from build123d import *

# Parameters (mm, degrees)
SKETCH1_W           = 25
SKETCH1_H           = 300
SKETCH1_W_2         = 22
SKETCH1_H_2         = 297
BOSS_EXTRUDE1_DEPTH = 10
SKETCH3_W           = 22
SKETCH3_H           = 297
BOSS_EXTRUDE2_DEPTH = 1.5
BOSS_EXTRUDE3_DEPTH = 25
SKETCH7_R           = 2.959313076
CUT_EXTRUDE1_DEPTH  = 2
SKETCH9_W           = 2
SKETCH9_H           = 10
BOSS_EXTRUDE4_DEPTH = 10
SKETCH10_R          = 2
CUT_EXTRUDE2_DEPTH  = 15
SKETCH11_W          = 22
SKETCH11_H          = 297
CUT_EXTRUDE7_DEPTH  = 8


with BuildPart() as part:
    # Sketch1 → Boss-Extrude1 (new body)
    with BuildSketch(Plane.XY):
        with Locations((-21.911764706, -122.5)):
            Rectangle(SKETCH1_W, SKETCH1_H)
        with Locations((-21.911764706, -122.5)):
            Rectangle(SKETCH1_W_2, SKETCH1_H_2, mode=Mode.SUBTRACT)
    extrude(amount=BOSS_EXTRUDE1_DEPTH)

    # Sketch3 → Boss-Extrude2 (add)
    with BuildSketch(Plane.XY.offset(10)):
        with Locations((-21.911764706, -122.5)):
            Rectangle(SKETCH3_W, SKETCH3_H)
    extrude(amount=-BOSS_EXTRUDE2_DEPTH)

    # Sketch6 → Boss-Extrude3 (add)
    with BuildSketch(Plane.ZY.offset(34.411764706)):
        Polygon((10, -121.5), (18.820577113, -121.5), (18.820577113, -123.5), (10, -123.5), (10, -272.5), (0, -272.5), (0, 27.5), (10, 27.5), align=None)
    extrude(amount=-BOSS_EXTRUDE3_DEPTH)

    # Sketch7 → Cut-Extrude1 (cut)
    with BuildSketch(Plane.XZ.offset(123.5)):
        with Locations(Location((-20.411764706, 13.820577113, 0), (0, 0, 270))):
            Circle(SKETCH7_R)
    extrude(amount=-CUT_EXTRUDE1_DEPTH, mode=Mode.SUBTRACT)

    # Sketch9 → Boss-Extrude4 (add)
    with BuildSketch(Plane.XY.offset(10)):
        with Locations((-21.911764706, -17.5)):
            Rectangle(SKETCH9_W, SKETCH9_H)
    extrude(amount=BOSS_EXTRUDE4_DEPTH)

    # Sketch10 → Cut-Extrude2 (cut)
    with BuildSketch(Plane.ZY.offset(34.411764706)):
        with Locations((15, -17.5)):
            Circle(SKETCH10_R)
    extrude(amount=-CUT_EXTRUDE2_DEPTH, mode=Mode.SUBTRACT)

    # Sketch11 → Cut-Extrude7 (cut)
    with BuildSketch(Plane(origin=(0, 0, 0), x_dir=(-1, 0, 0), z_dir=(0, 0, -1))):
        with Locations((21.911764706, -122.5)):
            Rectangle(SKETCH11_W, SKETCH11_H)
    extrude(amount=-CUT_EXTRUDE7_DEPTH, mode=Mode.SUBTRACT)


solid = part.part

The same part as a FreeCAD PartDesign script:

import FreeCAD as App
import Part
import Sketcher
from FreeCAD import Vector


def add_polygon(sketch, points):
    """Adds a closed chain of lines whose ends are joined by coincident constraints."""
    first, n = sketch.GeometryCount, len(points)
    for a, b in zip(points, points[1:] + points[:1]):
        sketch.addGeometry(Part.LineSegment(App.Vector(*a, 0), App.Vector(*b, 0)), False)
    for i in range(n):
        sketch.addConstraint(Sketcher.Constraint("Coincident", first + i, 2, first + (i + 1) % n, 1))

doc = App.newDocument("Part")
params = doc.addObject("Spreadsheet::Sheet", "Params")
for row, (alias, value) in enumerate([
    ("sketch1_width", "25 mm"),
    ("sketch1_width2", "22 mm"),
    ("sketch1_height", "300 mm"),
    ("sketch1_height2", "297 mm"),
    ("pad1_length", "10 mm"),
    ("sketch2_width", "22 mm"),
    ("sketch2_height", "297 mm"),
    ("pad2_length", "1.5 mm"),
    ("sketch3_width", "149 mm"),
    ("sketch3_width2", "300 mm"),
    ("sketch3_height", "10 mm"),
    ("pad3_length", "25 mm"),
    ("pocket1_length", "2 mm"),
    ("sketch5_width", "2 mm"),
    ("sketch5_height", "10 mm"),
    ("pad4_length", "10 mm"),
    ("sketch6_diameter", "4 mm"),
    ("pocket2_length", "15 mm"),
    ("sketch7_width", "22 mm"),
    ("sketch7_height", "297 mm"),
    ("pocket3_length", "8 mm"),
], start=1):
    params.set(f"A{row}", alias)
    params.set(f"B{row}", "=" + value)
    params.setAlias(f"B{row}", alias)

body = doc.addObject("PartDesign::Body", "Body")

sketch1 = body.newObject("Sketcher::SketchObject", "Sketch")
sketch1.AttachmentSupport = (doc.getObject("XY_Plane"), [""])
sketch1.MapMode = "FlatFace"
add_polygon(sketch1, [(-34, 28), (-34, -272), (-9, -272), (-9, 28)])
add_polygon(sketch1, [(-11, -271), (-33, -271), (-33, 26), (-11, 26)])
sketch1.addConstraint(Sketcher.Constraint("Vertical", 0))
sketch1.addConstraint(Sketcher.Constraint("Horizontal", 1))
sketch1.addConstraint(Sketcher.Constraint("Vertical", 2))
sketch1.addConstraint(Sketcher.Constraint("Horizontal", 3))
sketch1.addConstraint(Sketcher.Constraint("Horizontal", 4))
sketch1.addConstraint(Sketcher.Constraint("Vertical", 5))
sketch1.addConstraint(Sketcher.Constraint("Horizontal", 6))
sketch1.addConstraint(Sketcher.Constraint("Vertical", 7))
sketch1.addConstraint(Sketcher.Constraint("DistanceX", 1, 1, 1, 2, 25.0))
sketch1.addConstraint(Sketcher.Constraint("DistanceX", 4, 2, 4, 1, 22.0))
sketch1.addConstraint(Sketcher.Constraint("DistanceY", 0, 2, 0, 1, 300.0))
sketch1.addConstraint(Sketcher.Constraint("DistanceY", 5, 1, 5, 2, 297.0))
sketch1.addConstraint(Sketcher.Constraint("DistanceY", 4, 2, -1, 1, 271.0))
sketch1.addConstraint(Sketcher.Constraint("DistanceY", 0, 2, -1, 1, 272.5))
sketch1.addConstraint(Sketcher.Constraint("DistanceX", 0, 2, 4, 2, 1.5))
sketch1.addConstraint(Sketcher.Constraint("DistanceX", 0, 2, -1, 1, 34.411765))
sketch1.setExpression("Constraints[16]", "Params.sketch1_width")
sketch1.setExpression("Constraints[17]", "Params.sketch1_width2")
sketch1.setExpression("Constraints[18]", "Params.sketch1_height")
sketch1.setExpression("Constraints[19]", "Params.sketch1_height2")
pad1 = body.newObject("PartDesign::Pad", "Pad")
pad1.Profile = sketch1
pad1.setExpression("Length", "Params.pad1_length")

sketch2 = body.newObject("Sketcher::SketchObject", "Sketch001")
sketch2.AttachmentSupport = (doc.getObject("XY_Plane"), [""])
sketch2.MapMode = "FlatFace"
sketch2.AttachmentOffset = App.Placement(Vector(0, 0, 10), App.Rotation())
add_polygon(sketch2, [(-33, 26), (-33, -271), (-11, -271), (-11, 26)])
sketch2.addConstraint(Sketcher.Constraint("Vertical", 0))
sketch2.addConstraint(Sketcher.Constraint("Horizontal", 1))
sketch2.addConstraint(Sketcher.Constraint("Vertical", 2))
sketch2.addConstraint(Sketcher.Constraint("Horizontal", 3))
sketch2.addConstraint(Sketcher.Constraint("DistanceX", 1, 1, 1, 2, 22.0))
sketch2.addConstraint(Sketcher.Constraint("DistanceY", 0, 2, 0, 1, 297.0))
sketch2.addConstraint(Sketcher.Constraint("DistanceY", 0, 2, -1, 1, 271.0))
sketch2.addConstraint(Sketcher.Constraint("DistanceX", 0, 2, -1, 1, 32.911765))
sketch2.setExpression("Constraints[8]", "Params.sketch2_width")
sketch2.setExpression("Constraints[9]", "Params.sketch2_height")
pad2 = body.newObject("PartDesign::Pad", "Pad001")
pad2.Profile = sketch2
pad2.setExpression("Length", "Params.pad2_length")
pad2.Reversed = True

sketch3 = body.newObject("Sketcher::SketchObject", "Sketch002")
sketch3.AttachmentSupport = (doc.getObject("YZ_Plane"), [""])
sketch3.MapMode = "FlatFace"
sketch3.AttachmentOffset = App.Placement(Vector(0, 0, -34.411765), App.Rotation())
add_polygon(sketch3, [(-121.5, 18.8), (-121.5, 10), (27.5, 10), (27.5, 0), (-272.5, 0), (-272.5, 10), (-123.5, 10), (-123.5, 18.8)])
sketch3.addConstraint(Sketcher.Constraint("Vertical", 0))
sketch3.addConstraint(Sketcher.Constraint("Horizontal", 1))
sketch3.addConstraint(Sketcher.Constraint("Vertical", 2))
sketch3.addConstraint(Sketcher.Constraint("Horizontal", 3))
sketch3.addConstraint(Sketcher.Constraint("Vertical", 4))
sketch3.addConstraint(Sketcher.Constraint("Horizontal", 5))
sketch3.addConstraint(Sketcher.Constraint("Vertical", 6))
sketch3.addConstraint(Sketcher.Constraint("Horizontal", 7))
sketch3.addConstraint(Sketcher.Constraint("PointOnObject", 2, 2, -1))
sketch3.addConstraint(Sketcher.Constraint("Horizontal", 1, 2, 4, 2))
sketch3.addConstraint(Sketcher.Constraint("Equal", 1, 5))
sketch3.addConstraint(Sketcher.Constraint("DistanceX", 1, 1, 1, 2, 149.0))
sketch3.addConstraint(Sketcher.Constraint("DistanceX", 3, 2, 3, 1, 300.0))
sketch3.addConstraint(Sketcher.Constraint("DistanceY", 2, 2, 2, 1, 10.0))
sketch3.addConstraint(Sketcher.Constraint("DistanceX", 0, 2, -1, 1, 121.5))
sketch3.addConstraint(Sketcher.Constraint("DistanceY", 0, 2, 0, 1, 8.820577))
sketch3.setExpression("Constraints[19]", "Params.sketch3_width")
sketch3.setExpression("Constraints[20]", "Params.sketch3_width2")
sketch3.setExpression("Constraints[21]", "Params.sketch3_height")
pad3 = body.newObject("PartDesign::Pad", "Pad002")
pad3.Profile = sketch3
pad3.setExpression("Length", "Params.pad3_length")

sketch4 = body.newObject("Sketcher::SketchObject", "Sketch003")
sketch4.AttachmentSupport = (doc.getObject("XZ_Plane"), [""])
sketch4.MapMode = "FlatFace"
sketch4.AttachmentOffset = App.Placement(Vector(0, 0, 123.5), App.Rotation())
sketch4.addGeometry(Part.Circle(Vector(-20.4, 13.8, 0), Vector(0, 0, 1), 3), False)
sketch4.addConstraint(Sketcher.Constraint("Diameter", 0, 5.918626))
sketch4.addConstraint(Sketcher.Constraint("DistanceX", 0, 3, -1, 1, 20.411765))
sketch4.addConstraint(Sketcher.Constraint("DistanceY", -1, 1, 0, 3, 13.820577))
pocket1 = body.newObject("PartDesign::Pocket", "Pocket")
pocket1.Profile = sketch4
pocket1.setExpression("Length", "Params.pocket1_length")

sketch5 = body.newObject("Sketcher::SketchObject", "Sketch004")
sketch5.AttachmentSupport = (doc.getObject("XY_Plane"), [""])
sketch5.MapMode = "FlatFace"
sketch5.AttachmentOffset = App.Placement(Vector(0, 0, 10), App.Rotation())
add_polygon(sketch5, [(-22.9, -12.5), (-22.9, -22.5), (-20.9, -22.5), (-20.9, -12.5)])
sketch5.addConstraint(Sketcher.Constraint("Vertical", 0))
sketch5.addConstraint(Sketcher.Constraint("Horizontal", 1))
sketch5.addConstraint(Sketcher.Constraint("Vertical", 2))
sketch5.addConstraint(Sketcher.Constraint("Horizontal", 3))
sketch5.addConstraint(Sketcher.Constraint("DistanceX", 1, 1, 1, 2, 2.0))
sketch5.addConstraint(Sketcher.Constraint("DistanceY", 0, 2, 0, 1, 10.0))
sketch5.addConstraint(Sketcher.Constraint("DistanceY", 0, 2, -1, 1, 22.5))
sketch5.addConstraint(Sketcher.Constraint("DistanceX", 0, 2, -1, 1, 22.911765))
sketch5.setExpression("Constraints[8]", "Params.sketch5_width")
sketch5.setExpression("Constraints[9]", "Params.sketch5_height")
pad4 = body.newObject("PartDesign::Pad", "Pad003")
pad4.Profile = sketch5
pad4.setExpression("Length", "Params.pad4_length")

sketch6 = body.newObject("Sketcher::SketchObject", "Sketch005")
sketch6.AttachmentSupport = (doc.getObject("YZ_Plane"), [""])
sketch6.MapMode = "FlatFace"
sketch6.AttachmentOffset = App.Placement(Vector(0, 0, -34.411765), App.Rotation())
sketch6.addGeometry(Part.Circle(Vector(-17.5, 15, 0), Vector(0, 0, 1), 2), False)
sketch6.addConstraint(Sketcher.Constraint("Diameter", 0, 4.0))
sketch6.addConstraint(Sketcher.Constraint("DistanceY", -1, 1, 0, 3, 15.0))
sketch6.addConstraint(Sketcher.Constraint("DistanceX", 0, 3, -1, 1, 17.5))
sketch6.setExpression("Constraints[0]", "Params.sketch6_diameter")
pocket2 = body.newObject("PartDesign::Pocket", "Pocket001")
pocket2.Profile = sketch6
pocket2.setExpression("Length", "Params.pocket2_length")
pocket2.Reversed = True

sketch7 = body.newObject("Sketcher::SketchObject", "Sketch006")
sketch7.AttachmentSupport = (doc.getObject("XY_Plane"), [""])
sketch7.MapMode = "FlatFace"
add_polygon(sketch7, [(-11, 26), (-11, -271), (-33, -271), (-33, 26)])
sketch7.addConstraint(Sketcher.Constraint("Vertical", 0))
sketch7.addConstraint(Sketcher.Constraint("Horizontal", 1))
sketch7.addConstraint(Sketcher.Constraint("Vertical", 2))
sketch7.addConstraint(Sketcher.Constraint("Horizontal", 3))
sketch7.addConstraint(Sketcher.Constraint("DistanceX", 1, 2, 1, 1, 22.0))
sketch7.addConstraint(Sketcher.Constraint("DistanceY", 0, 2, 0, 1, 297.0))
sketch7.addConstraint(Sketcher.Constraint("DistanceY", 0, 2, -1, 1, 271.0))
sketch7.addConstraint(Sketcher.Constraint("DistanceX", 0, 2, -1, 1, 10.911765))
sketch7.setExpression("Constraints[8]", "Params.sketch7_width")
sketch7.setExpression("Constraints[9]", "Params.sketch7_height")
pocket3 = body.newObject("PartDesign::Pocket", "Pocket002")
pocket3.Profile = sketch7
pocket3.setExpression("Length", "Params.pocket3_length")
pocket3.Reversed = True

doc.recompute()
